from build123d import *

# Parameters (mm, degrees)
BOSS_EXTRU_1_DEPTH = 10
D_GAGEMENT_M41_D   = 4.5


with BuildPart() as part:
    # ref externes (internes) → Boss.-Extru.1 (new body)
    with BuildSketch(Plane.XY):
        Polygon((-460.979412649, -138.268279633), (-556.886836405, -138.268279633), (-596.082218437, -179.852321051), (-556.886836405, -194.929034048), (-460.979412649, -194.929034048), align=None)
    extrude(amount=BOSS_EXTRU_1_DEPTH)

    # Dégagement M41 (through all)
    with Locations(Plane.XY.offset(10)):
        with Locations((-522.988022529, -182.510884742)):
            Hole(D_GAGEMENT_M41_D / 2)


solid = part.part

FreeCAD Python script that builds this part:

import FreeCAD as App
import Part
import Sketcher
Q = App.Units.Quantity


def add_polygon(sketch, points):
    """Adds a closed chain of lines whose ends are joined by coincident constraints."""
    first, n = sketch.GeometryCount, len(points)
    for a, b in zip(points, points[1:] + points[:1]):
        sketch.addGeometry(Part.LineSegment(App.Vector(*a, 0), App.Vector(*b, 0)), False)
    for i in range(n):
        sketch.addConstraint(Sketcher.Constraint("Coincident", first + i, 2, first + (i + 1) % n, 1))

doc = App.newDocument("Part")
body = doc.addObject("PartDesign::Body", "Body")

sketch1 = doc.addObject("Sketcher::SketchObject", "Sketch")
body.addObject(sketch1)
sketch1.AttachmentSupport = (doc.XY_Plane, [""])
sketch1.MapMode = "FlatFace"
add_polygon(sketch1, [(-461, -138), (-557, -138), (-596, -180), (-557, -195), (-461, -195)])
sketch1.addConstraint(Sketcher.Constraint("Horizontal", 0))
sketch1.addConstraint(Sketcher.Constraint("Horizontal", 3))
sketch1.addConstraint(Sketcher.Constraint("Vertical", 4))
sketch1.addConstraint(Sketcher.Constraint("Vertical", 0, 2, 2, 2))
sketch1.addConstraint(Sketcher.Constraint("DistanceX", 0, 2, 0, 1, Q("95.907424 mm")))
sketch1.addConstraint(Sketcher.Constraint("DistanceY", 4, 1, 4, 2, Q("56.660754 mm")))
sketch1.addConstraint(Sketcher.Constraint("DistanceY", 0, 2, -1, 1, Q("138.26828 mm")))
sketch1.addConstraint(Sketcher.Constraint("DistanceX", 1, 2, -1, 1, Q("596.082218 mm")))
sketch1.addConstraint(Sketcher.Constraint("DistanceY", 1, 2, -1, 1, Q("179.852321 mm")))
sketch1.addConstraint(Sketcher.Constraint("Distance", 1, Q("57.144645 mm")))
pad1 = doc.addObject("PartDesign::Pad", "Pad")
body.addObject(pad1)
pad1.Profile = sketch1
pad1.Length = 10

sketch2 = doc.addObject("Sketcher::SketchObject", "Sketch001")
body.addObject(sketch2)
sketch2.AttachmentSupport = (doc.XY_Plane, [""])
sketch2.MapMode = "FlatFace"
sketch2.AttachmentOffset = App.Placement(App.Vector(0, 0, 10), App.Rotation())
sketch2.addGeometry(Part.Circle(App.Vector(-523, -182.5, 0), App.Vector(0, 0, 1), 2.2), False)
sketch2.addConstraint(Sketcher.Constraint("Diameter", 0, Q("4.5 mm")))
sketch2.addConstraint(Sketcher.Constraint("DistanceX", 0, 3, -1, 1, Q("522.988023 mm")))
sketch2.addConstraint(Sketcher.Constraint("DistanceY", 0, 3, -1, 1, Q("182.510885 mm")))
doc.recompute()
hole = doc.addObject("PartDesign::Hole", "Hole")
body.addObject(hole)
hole.Profile = sketch2
hole.ThreadType = "None"
hole.Diameter = 4.5
hole.DepthType = "ThroughAll"

doc.recompute()
